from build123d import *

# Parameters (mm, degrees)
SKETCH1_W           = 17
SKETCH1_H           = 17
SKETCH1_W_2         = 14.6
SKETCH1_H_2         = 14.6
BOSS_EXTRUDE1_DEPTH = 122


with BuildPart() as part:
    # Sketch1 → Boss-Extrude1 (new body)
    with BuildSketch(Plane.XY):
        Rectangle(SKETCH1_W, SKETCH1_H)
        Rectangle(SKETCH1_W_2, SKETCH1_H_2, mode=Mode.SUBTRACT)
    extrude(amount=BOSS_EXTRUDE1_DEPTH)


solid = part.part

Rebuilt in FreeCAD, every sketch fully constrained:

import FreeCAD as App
import Part
import Sketcher
from FreeCAD import Vector
Q = App.Units.Quantity

doc = App.newDocument("Part")
body = doc.addObject("PartDesign::Body", "Body")

# Sketch on XY plane
sketch1 = doc.addObject("Sketcher::SketchObject", "Sketch")
body.addObject(sketch1)
sketch1.AttachmentSupport = (doc.XY_Plane, [""])
sketch1.MapMode = "FlatFace"
sketch1.addGeometry([
    Part.LineSegment(Vector(-8, 8, 0), Vector(-8, -8, 0)),  # 0
    Part.LineSegment(Vector(-8, -8, 0), Vector(8, -8, 0)),  # 1
    Part.LineSegment(Vector(8, -8, 0), Vector(8, 8, 0)),  # 2
    Part.LineSegment(Vector(8, 8, 0), Vector(-8, 8, 0)),  # 3
    Part.LineSegment(Vector(7, -7, 0), Vector(-7, -7, 0)),  # 4
    Part.LineSegment(Vector(-7, -7, 0), Vector(-7, 7, 0)),  # 5
    Part.LineSegment(Vector(-7, 7, 0), Vector(7, 7, 0)),  # 6
    Part.LineSegment(Vector(7, 7, 0), Vector(7, -7, 0)),  # 7
], False)
sketch1.addConstraint([
    Sketcher.Constraint("Coincident", 0, 2, 1, 1),
    Sketcher.Constraint("Coincident", 1, 2, 2, 1),
    Sketcher.Constraint("Coincident", 2, 2, 3, 1),
    Sketcher.Constraint("Coincident", 3, 2, 0, 1),
    Sketcher.Constraint("Coincident", 4, 2, 5, 1),
    Sketcher.Constraint("Coincident", 5, 2, 6, 1),
    Sketcher.Constraint("Coincident", 6, 2, 7, 1),
    Sketcher.Constraint("Coincident", 7, 2, 4, 1),
    Sketcher.Constraint("Vertical", 0),
    Sketcher.Constraint("Horizontal", 1),
    Sketcher.Constraint("Vertical", 2),
    Sketcher.Constraint("Horizontal", 3),
    Sketcher.Constraint("Horizontal", 4),
    Sketcher.Constraint("Vertical", 5),
    Sketcher.Constraint("Horizontal", 6),
    Sketcher.Constraint("Vertical", 7),
    Sketcher.Constraint("Symmetric", 0, 2, 2, 2, -1, 1),
    Sketcher.Constraint("Symmetric", 4, 2, 6, 2, -1, 1),
    Sketcher.Constraint("Equal", 3, 0),
    Sketcher.Constraint("Equal", 6, 5),
    Sketcher.Constraint("DistanceX", 1, 1, 1, 2, Q("17 mm")),
    Sketcher.Constraint("DistanceX", 4, 2, 4, 1, Q("14.6 mm")),
])
pad1 = doc.addObject("PartDesign::Pad", "Pad")
body.addObject(pad1)
pad1.Profile = sketch1
pad1.Length = 122

doc.recompute()
